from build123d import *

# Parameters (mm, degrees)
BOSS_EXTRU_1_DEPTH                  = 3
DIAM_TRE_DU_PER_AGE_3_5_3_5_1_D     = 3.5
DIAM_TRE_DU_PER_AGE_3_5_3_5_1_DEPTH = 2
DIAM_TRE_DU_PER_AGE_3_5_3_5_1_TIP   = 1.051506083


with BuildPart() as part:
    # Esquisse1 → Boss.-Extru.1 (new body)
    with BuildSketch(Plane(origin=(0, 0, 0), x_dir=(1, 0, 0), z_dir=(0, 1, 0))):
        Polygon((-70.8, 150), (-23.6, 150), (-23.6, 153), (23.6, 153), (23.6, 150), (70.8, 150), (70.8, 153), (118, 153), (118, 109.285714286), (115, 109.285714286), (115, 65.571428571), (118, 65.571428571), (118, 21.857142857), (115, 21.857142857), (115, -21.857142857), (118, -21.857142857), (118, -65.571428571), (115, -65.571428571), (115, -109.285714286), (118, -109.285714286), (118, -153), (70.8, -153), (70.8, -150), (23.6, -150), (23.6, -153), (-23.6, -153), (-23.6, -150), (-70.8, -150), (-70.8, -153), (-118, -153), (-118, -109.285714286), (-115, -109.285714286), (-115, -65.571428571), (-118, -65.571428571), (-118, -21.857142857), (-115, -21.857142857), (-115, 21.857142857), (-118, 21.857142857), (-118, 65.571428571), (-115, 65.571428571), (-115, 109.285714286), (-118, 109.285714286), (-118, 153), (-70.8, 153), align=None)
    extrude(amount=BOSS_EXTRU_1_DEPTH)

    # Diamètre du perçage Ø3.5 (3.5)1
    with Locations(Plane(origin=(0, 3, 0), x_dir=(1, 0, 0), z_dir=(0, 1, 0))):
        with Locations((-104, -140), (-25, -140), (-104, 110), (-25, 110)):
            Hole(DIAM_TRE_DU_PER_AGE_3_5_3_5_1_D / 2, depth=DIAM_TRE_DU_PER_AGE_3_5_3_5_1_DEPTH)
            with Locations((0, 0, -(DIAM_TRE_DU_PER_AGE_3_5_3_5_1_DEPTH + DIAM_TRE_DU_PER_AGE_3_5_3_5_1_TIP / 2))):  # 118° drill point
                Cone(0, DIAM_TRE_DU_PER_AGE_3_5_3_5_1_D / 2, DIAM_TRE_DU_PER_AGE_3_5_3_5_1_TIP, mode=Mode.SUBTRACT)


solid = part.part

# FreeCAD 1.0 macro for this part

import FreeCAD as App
import Part
import Sketcher
from FreeCAD import Vector
Q = App.Units.Quantity

doc = App.newDocument("Part")
body = doc.addObject("PartDesign::Body", "Body")

# Sketch on XZ plane
sketch1 = doc.addObject("Sketcher::SketchObject", "Sketch")
body.addObject(sketch1)
sketch1.AttachmentSupport = (doc.XZ_Plane, [""])
sketch1.MapMode = "FlatFace"
sketch1.addGeometry([
    Part.LineSegment(Vector(-23.6, -150, 0), Vector(-70.8, -150, 0)),  # 0
    Part.LineSegment(Vector(-70.8, -150, 0), Vector(-70.8, -153, 0)),  # 1
    Part.LineSegment(Vector(-70.8, -153, 0), Vector(-118, -153, 0)),  # 2
    Part.LineSegment(Vector(-118, -153, 0), Vector(-118, -109.3, 0)),  # 3
    Part.LineSegment(Vector(-118, -109.3, 0), Vector(-115, -109.3, 0)),  # 4
    Part.LineSegment(Vector(-115, -109.3, 0), Vector(-115, -65.6, 0)),  # 5
    Part.LineSegment(Vector(-115, -65.6, 0), Vector(-118, -65.6, 0)),  # 6
    Part.LineSegment(Vector(-118, -65.6, 0), Vector(-118, -21.9, 0)),  # 7
    Part.LineSegment(Vector(-118, -21.9, 0), Vector(-115, -21.9, 0)),  # 8
    Part.LineSegment(Vector(-115, -21.9, 0), Vector(-115, 21.9, 0)),  # 9
    Part.LineSegment(Vector(-115, 21.9, 0), Vector(-118, 21.9, 0)),  # 10
    Part.LineSegment(Vector(-118, 21.9, 0), Vector(-118, 65.6, 0)),  # 11
    Part.LineSegment(Vector(-118, 65.6, 0), Vector(-115, 65.6, 0)),  # 12
    Part.LineSegment(Vector(-115, 65.6, 0), Vector(-115, 109.3, 0)),  # 13
    Part.LineSegment(Vector(-115, 109.3, 0), Vector(-118, 109.3, 0)),  # 14
    Part.LineSegment(Vector(-118, 109.3, 0), Vector(-118, 153, 0)),  # 15
    Part.LineSegment(Vector(-118, 153, 0), Vector(-70.8, 153, 0)),  # 16
    Part.LineSegment(Vector(-70.8, 153, 0), Vector(-70.8, 150, 0)),  # 17
    Part.LineSegment(Vector(-70.8, 150, 0), Vector(-23.6, 150, 0)),  # 18
    Part.LineSegment(Vector(-23.6, 150, 0), Vector(-23.6, 153, 0)),  # 19
    Part.LineSegment(Vector(-23.6, 153, 0), Vector(23.6, 153, 0)),  # 20
    Part.LineSegment(Vector(23.6, 153, 0), Vector(23.6, 150, 0)),  # 21
    Part.LineSegment(Vector(23.6, 150, 0), Vector(70.8, 150, 0)),  # 22
    Part.LineSegment(Vector(70.8, 150, 0), Vector(70.8, 153, 0)),  # 23
    Part.LineSegment(Vector(70.8, 153, 0), Vector(118, 153, 0)),  # 24
    Part.LineSegment(Vector(118, 153, 0), Vector(118, 109.3, 0)),  # 25
    Part.LineSegment(Vector(118, 109.3, 0), Vector(115, 109.3, 0)),  # 26
    Part.LineSegment(Vector(115, 109.3, 0), Vector(115, 65.6, 0)),  # 27
    Part.LineSegment(Vector(115, 65.6, 0), Vector(118, 65.6, 0)),  # 28
    Part.LineSegment(Vector(118, 65.6, 0), Vector(118, 21.9, 0)),  # 29
    Part.LineSegment(Vector(118, 21.9, 0), Vector(115, 21.9, 0)),  # 30
    Part.LineSegment(Vector(115, 21.9, 0), Vector(115, -21.9, 0)),  # 31
    Part.LineSegment(Vector(115, -21.9, 0), Vector(118, -21.9, 0)),  # 32
    Part.LineSegment(Vector(118, -21.9, 0), Vector(118, -65.6, 0)),  # 33
    Part.LineSegment(Vector(118, -65.6, 0), Vector(115, -65.6, 0)),  # 34
    Part.LineSegment(Vector(115, -65.6, 0), Vector(115, -109.3, 0)),  # 35
    Part.LineSegment(Vector(115, -109.3, 0), Vector(118, -109.3, 0)),  # 36
    Part.LineSegment(Vector(118, -109.3, 0), Vector(118, -153, 0)),  # 37
    Part.LineSegment(Vector(118, -153, 0), Vector(70.8, -153, 0)),  # 38
    Part.LineSegment(Vector(70.8, -153, 0), Vector(70.8, -150, 0)),  # 39
    Part.LineSegment(Vector(70.8, -150, 0), Vector(23.6, -150, 0)),  # 40
    Part.LineSegment(Vector(23.6, -150, 0), Vector(23.6, -153, 0)),  # 41
    Part.LineSegment(Vector(23.6, -153, 0), Vector(-23.6, -153, 0)),  # 42
    Part.LineSegment(Vector(-23.6, -153, 0), Vector(-23.6, -150, 0)),  # 43
], False)
sketch1.addConstraint([
    Sketcher.Constraint("Coincident", 0, 2, 1, 1),
    Sketcher.Constraint("Coincident", 1, 2, 2, 1),
    Sketcher.Constraint("Coincident", 2, 2, 3, 1),
    Sketcher.Constraint("Coincident", 3, 2, 4, 1),
    Sketcher.Constraint("Coincident", 4, 2, 5, 1),
    Sketcher.Constraint("Coincident", 5, 2, 6, 1),
    Sketcher.Constraint("Coincident", 6, 2, 7, 1),
    Sketcher.Constraint("Coincident", 7, 2, 8, 1),
    Sketcher.Constraint("Coincident", 8, 2, 9, 1),
    Sketcher.Constraint("Coincident", 9, 2, 10, 1),
    Sketcher.Constraint("Coincident", 10, 2, 11, 1),
    Sketcher.Constraint("Coincident", 11, 2, 12, 1),
    Sketcher.Constraint("Coincident", 12, 2, 13, 1),
    Sketcher.Constraint("Coincident", 13, 2, 14, 1),
    Sketcher.Constraint("Coincident", 14, 2, 15, 1),
    Sketcher.Constraint("Coincident", 15, 2, 16, 1),
    Sketcher.Constraint("Coincident", 16, 2, 17, 1),
    Sketcher.Constraint("Coincident", 17, 2, 18, 1),
    Sketcher.Constraint("Coincident", 18, 2, 19, 1),
    Sketcher.Constraint("Coincident", 19, 2, 20, 1),
    Sketcher.Constraint("Coincident", 20, 2, 21, 1),
    Sketcher.Constraint("Coincident", 21, 2, 22, 1),
    Sketcher.Constraint("Coincident", 22, 2, 23, 1),
    Sketcher.Constraint("Coincident", 23, 2, 24, 1),
    Sketcher.Constraint("Coincident", 24, 2, 25, 1),
    Sketcher.Constraint("Coincident", 25, 2, 26, 1),
    Sketcher.Constraint("Coincident", 26, 2, 27, 1),
    Sketcher.Constraint("Coincident", 27, 2, 28, 1),
    Sketcher.Constraint("Coincident", 28, 2, 29, 1),
    Sketcher.Constraint("Coincident", 29, 2, 30, 1),
    Sketcher.Constraint("Coincident", 30, 2, 31, 1),
    Sketcher.Constraint("Coincident", 31, 2, 32, 1),
    Sketcher.Constraint("Coincident", 32, 2, 33, 1),
    Sketcher.Constraint("Coincident", 33, 2, 34, 1),
    Sketcher.Constraint("Coincident", 34, 2, 35, 1),
    Sketcher.Constraint("Coincident", 35, 2, 36, 1),
    Sketcher.Constraint("Coincident", 36, 2, 37, 1),
    Sketcher.Constraint("Coincident", 37, 2, 38, 1),
    Sketcher.Constraint("Coincident", 38, 2, 39, 1),
    Sketcher.Constraint("Coincident", 39, 2, 40, 1),
    Sketcher.Constraint("Coincident", 40, 2, 41, 1),
    Sketcher.Constraint("Coincident", 41, 2, 42, 1),
    Sketcher.Constraint("Coincident", 42, 2, 43, 1),
    Sketcher.Constraint("Coincident", 43, 2, 0, 1),
    Sketcher.Constraint("Horizontal", 0),
    Sketcher.Constraint("Vertical", 1),
    Sketcher.Constraint("Horizontal", 2),
    Sketcher.Constraint("Vertical", 3),
    Sketcher.Constraint("Horizontal", 4),
    Sketcher.Constraint("Vertical", 5),
    Sketcher.Constraint("Horizontal", 6),
    Sketcher.Constraint("Vertical", 7),
    Sketcher.Constraint("Horizontal", 8),
    Sketcher.Constraint("Vertical", 9),
    Sketcher.Constraint("Horizontal", 10),
    Sketcher.Constraint("Vertical", 11),
    Sketcher.Constraint("Horizontal", 12),
    Sketcher.Constraint("Vertical", 13),
    Sketcher.Constraint("Horizontal", 14),
    Sketcher.Constraint("Vertical", 15),
    Sketcher.Constraint("Horizontal", 16),
    Sketcher.Constraint("Vertical", 17),
    Sketcher.Constraint("Horizontal", 18),
    Sketcher.Constraint("Vertical", 19),
    Sketcher.Constraint("Horizontal", 20),
    Sketcher.Constraint("Vertical", 21),
    Sketcher.Constraint("Horizontal", 22),
    Sketcher.Constraint("Vertical", 23),
    Sketcher.Constraint("Horizontal", 24),
    Sketcher.Constraint("Vertical", 25),
    Sketcher.Constraint("Horizontal", 26),
    Sketcher.Constraint("Vertical", 27),
    Sketcher.Constraint("Horizontal", 28),
    Sketcher.Constraint("Vertical", 29),
    Sketcher.Constraint("Horizontal", 30),
    Sketcher.Constraint("Vertical", 31),
    Sketcher.Constraint("Horizontal", 32),
    Sketcher.Constraint("Vertical", 33),
    Sketcher.Constraint("Horizontal", 34),
    Sketcher.Constraint("Vertical", 35),
    Sketcher.Constraint("Horizontal", 36),
    Sketcher.Constraint("Vertical", 37),
    Sketcher.Constraint("Horizontal", 38),
    Sketcher.Constraint("Vertical", 39),
    Sketcher.Constraint("Horizontal", 40),
    Sketcher.Constraint("Vertical", 41),
    Sketcher.Constraint("Horizontal", 42),
    Sketcher.Constraint("Vertical", 43),
    Sketcher.Constraint("Symmetric", 0, 2, 22, 2, -1, 1),
    Sketcher.Constraint("Symmetric", 2, 2, 24, 2, -1, 1),
    Sketcher.Constraint("Symmetric", 4, 2, 26, 2, -1, 1),
    Sketcher.Constraint("Symmetric", 6, 2, 28, 2, -1, 1),
    Sketcher.Constraint("Symmetric", 8, 2, 30, 2, -1, 1),
    Sketcher.Constraint("Symmetric", 10, 2, 32, 2, -1, 1),
    Sketcher.Constraint("Symmetric", 12, 2, 34, 2, -1, 1),
    Sketcher.Constraint("Symmetric", 14, 2, 36, 2, -1, 1),
    Sketcher.Constraint("Symmetric", 16, 2, 38, 2, -1, 1),
    Sketcher.Constraint("Symmetric", 18, 2, 40, 2, -1, 1),
    Sketcher.Constraint("Symmetric", 20, 2, 42, 2, -1, 1),
    Sketcher.Constraint("Symmetric", 18, 2, 21, 2, -2),
    Sketcher.Constraint("Symmetric", 16, 2, 23, 2, -2),
    Sketcher.Constraint("Symmetric", 14, 2, 25, 2, -2),
    Sketcher.Constraint("Symmetric", 12, 2, 27, 2, -2),
    Sketcher.Constraint("Symmetric", 10, 2, 29, 2, -2),
    Sketcher.Constraint("Horizontal", 16, 2, 19, 2),
    Sketcher.Constraint("Vertical", 3, 2, 6, 2),
    Sketcher.Constraint("Vertical", 5, 2, 8, 2),
    Sketcher.Constraint("Equal", 0, 2),
    Sketcher.Constraint("Equal", 18, 20),
    Sketcher.Constraint("Equal", 36, 1),
    Sketcher.Constraint("Equal", 3, 5),
    Sketcher.Constraint("Equal", 5, 7),
    Sketcher.Constraint("Equal", 7, 9),
    Sketcher.Constraint("DistanceX", 4, 1, 4, 2, Q("3 mm")),
    Sketcher.Constraint("DistanceX", 0, 2, 0, 1, Q("47.2 mm")),
    Sketcher.Constraint("DistanceY", 0, 2, -1, 1, Q("150 mm")),
])
pad1 = doc.addObject("PartDesign::Pad", "Pad")
body.addObject(pad1)
pad1.Profile = sketch1
pad1.Length = 3
pad1.Reversed = True

# Sketch on XZ plane
sketch2 = doc.addObject("Sketcher::SketchObject", "Sketch001")
body.addObject(sketch2)
sketch2.AttachmentSupport = (doc.XZ_Plane, [""])
sketch2.MapMode = "FlatFace"
sketch2.AttachmentOffset = App.Placement(Vector(0, 0, -3), App.Rotation())
sketch2.addGeometry([
    Part.Circle(Vector(-104, 140, 0), Vector(0, 0, 1), 1.8),
    Part.Circle(Vector(-25, 140, 0), Vector(0, 0, 1), 1.8),
    Part.Circle(Vector(-104, -110, 0), Vector(0, 0, 1), 1.8),
    Part.Circle(Vector(-25, -110, 0), Vector(0, 0, 1), 1.8),
], False)
sketch2.addConstraint([
    Sketcher.Constraint("Equal", 0, 1),
    Sketcher.Constraint("Equal", 1, 2),
    Sketcher.Constraint("Equal", 2, 3),
    Sketcher.Constraint("Horizontal", 0, 3, 1, 3),
    Sketcher.Constraint("Horizontal", 2, 3, 3, 3),
    Sketcher.Constraint("Vertical", 0, 3, 2, 3),
    Sketcher.Constraint("Vertical", 1, 3, 3, 3),
    Sketcher.Constraint("Diameter", 0, Q("3.5 mm")),
    Sketcher.Constraint("DistanceX", 0, 3, -1, 1, Q("104 mm")),
    Sketcher.Constraint("DistanceY", -1, 1, 0, 3, Q("140 mm")),
    Sketcher.Constraint("DistanceX", 1, 3, -1, 1, Q("25 mm")),
    Sketcher.Constraint("DistanceY", 2, 3, -1, 1, Q("110 mm")),
])
doc.recompute()
hole = doc.addObject("PartDesign::Hole", "Hole")
body.addObject(hole)
hole.Profile = sketch2
hole.ThreadType = "None"
hole.Diameter = 3.5
hole.DepthType = "Dimension"
hole.Depth = 2
hole.DrillPoint = "Angled"
hole.DrillPointAngle = 118
hole.Reversed = True

doc.recompute()
